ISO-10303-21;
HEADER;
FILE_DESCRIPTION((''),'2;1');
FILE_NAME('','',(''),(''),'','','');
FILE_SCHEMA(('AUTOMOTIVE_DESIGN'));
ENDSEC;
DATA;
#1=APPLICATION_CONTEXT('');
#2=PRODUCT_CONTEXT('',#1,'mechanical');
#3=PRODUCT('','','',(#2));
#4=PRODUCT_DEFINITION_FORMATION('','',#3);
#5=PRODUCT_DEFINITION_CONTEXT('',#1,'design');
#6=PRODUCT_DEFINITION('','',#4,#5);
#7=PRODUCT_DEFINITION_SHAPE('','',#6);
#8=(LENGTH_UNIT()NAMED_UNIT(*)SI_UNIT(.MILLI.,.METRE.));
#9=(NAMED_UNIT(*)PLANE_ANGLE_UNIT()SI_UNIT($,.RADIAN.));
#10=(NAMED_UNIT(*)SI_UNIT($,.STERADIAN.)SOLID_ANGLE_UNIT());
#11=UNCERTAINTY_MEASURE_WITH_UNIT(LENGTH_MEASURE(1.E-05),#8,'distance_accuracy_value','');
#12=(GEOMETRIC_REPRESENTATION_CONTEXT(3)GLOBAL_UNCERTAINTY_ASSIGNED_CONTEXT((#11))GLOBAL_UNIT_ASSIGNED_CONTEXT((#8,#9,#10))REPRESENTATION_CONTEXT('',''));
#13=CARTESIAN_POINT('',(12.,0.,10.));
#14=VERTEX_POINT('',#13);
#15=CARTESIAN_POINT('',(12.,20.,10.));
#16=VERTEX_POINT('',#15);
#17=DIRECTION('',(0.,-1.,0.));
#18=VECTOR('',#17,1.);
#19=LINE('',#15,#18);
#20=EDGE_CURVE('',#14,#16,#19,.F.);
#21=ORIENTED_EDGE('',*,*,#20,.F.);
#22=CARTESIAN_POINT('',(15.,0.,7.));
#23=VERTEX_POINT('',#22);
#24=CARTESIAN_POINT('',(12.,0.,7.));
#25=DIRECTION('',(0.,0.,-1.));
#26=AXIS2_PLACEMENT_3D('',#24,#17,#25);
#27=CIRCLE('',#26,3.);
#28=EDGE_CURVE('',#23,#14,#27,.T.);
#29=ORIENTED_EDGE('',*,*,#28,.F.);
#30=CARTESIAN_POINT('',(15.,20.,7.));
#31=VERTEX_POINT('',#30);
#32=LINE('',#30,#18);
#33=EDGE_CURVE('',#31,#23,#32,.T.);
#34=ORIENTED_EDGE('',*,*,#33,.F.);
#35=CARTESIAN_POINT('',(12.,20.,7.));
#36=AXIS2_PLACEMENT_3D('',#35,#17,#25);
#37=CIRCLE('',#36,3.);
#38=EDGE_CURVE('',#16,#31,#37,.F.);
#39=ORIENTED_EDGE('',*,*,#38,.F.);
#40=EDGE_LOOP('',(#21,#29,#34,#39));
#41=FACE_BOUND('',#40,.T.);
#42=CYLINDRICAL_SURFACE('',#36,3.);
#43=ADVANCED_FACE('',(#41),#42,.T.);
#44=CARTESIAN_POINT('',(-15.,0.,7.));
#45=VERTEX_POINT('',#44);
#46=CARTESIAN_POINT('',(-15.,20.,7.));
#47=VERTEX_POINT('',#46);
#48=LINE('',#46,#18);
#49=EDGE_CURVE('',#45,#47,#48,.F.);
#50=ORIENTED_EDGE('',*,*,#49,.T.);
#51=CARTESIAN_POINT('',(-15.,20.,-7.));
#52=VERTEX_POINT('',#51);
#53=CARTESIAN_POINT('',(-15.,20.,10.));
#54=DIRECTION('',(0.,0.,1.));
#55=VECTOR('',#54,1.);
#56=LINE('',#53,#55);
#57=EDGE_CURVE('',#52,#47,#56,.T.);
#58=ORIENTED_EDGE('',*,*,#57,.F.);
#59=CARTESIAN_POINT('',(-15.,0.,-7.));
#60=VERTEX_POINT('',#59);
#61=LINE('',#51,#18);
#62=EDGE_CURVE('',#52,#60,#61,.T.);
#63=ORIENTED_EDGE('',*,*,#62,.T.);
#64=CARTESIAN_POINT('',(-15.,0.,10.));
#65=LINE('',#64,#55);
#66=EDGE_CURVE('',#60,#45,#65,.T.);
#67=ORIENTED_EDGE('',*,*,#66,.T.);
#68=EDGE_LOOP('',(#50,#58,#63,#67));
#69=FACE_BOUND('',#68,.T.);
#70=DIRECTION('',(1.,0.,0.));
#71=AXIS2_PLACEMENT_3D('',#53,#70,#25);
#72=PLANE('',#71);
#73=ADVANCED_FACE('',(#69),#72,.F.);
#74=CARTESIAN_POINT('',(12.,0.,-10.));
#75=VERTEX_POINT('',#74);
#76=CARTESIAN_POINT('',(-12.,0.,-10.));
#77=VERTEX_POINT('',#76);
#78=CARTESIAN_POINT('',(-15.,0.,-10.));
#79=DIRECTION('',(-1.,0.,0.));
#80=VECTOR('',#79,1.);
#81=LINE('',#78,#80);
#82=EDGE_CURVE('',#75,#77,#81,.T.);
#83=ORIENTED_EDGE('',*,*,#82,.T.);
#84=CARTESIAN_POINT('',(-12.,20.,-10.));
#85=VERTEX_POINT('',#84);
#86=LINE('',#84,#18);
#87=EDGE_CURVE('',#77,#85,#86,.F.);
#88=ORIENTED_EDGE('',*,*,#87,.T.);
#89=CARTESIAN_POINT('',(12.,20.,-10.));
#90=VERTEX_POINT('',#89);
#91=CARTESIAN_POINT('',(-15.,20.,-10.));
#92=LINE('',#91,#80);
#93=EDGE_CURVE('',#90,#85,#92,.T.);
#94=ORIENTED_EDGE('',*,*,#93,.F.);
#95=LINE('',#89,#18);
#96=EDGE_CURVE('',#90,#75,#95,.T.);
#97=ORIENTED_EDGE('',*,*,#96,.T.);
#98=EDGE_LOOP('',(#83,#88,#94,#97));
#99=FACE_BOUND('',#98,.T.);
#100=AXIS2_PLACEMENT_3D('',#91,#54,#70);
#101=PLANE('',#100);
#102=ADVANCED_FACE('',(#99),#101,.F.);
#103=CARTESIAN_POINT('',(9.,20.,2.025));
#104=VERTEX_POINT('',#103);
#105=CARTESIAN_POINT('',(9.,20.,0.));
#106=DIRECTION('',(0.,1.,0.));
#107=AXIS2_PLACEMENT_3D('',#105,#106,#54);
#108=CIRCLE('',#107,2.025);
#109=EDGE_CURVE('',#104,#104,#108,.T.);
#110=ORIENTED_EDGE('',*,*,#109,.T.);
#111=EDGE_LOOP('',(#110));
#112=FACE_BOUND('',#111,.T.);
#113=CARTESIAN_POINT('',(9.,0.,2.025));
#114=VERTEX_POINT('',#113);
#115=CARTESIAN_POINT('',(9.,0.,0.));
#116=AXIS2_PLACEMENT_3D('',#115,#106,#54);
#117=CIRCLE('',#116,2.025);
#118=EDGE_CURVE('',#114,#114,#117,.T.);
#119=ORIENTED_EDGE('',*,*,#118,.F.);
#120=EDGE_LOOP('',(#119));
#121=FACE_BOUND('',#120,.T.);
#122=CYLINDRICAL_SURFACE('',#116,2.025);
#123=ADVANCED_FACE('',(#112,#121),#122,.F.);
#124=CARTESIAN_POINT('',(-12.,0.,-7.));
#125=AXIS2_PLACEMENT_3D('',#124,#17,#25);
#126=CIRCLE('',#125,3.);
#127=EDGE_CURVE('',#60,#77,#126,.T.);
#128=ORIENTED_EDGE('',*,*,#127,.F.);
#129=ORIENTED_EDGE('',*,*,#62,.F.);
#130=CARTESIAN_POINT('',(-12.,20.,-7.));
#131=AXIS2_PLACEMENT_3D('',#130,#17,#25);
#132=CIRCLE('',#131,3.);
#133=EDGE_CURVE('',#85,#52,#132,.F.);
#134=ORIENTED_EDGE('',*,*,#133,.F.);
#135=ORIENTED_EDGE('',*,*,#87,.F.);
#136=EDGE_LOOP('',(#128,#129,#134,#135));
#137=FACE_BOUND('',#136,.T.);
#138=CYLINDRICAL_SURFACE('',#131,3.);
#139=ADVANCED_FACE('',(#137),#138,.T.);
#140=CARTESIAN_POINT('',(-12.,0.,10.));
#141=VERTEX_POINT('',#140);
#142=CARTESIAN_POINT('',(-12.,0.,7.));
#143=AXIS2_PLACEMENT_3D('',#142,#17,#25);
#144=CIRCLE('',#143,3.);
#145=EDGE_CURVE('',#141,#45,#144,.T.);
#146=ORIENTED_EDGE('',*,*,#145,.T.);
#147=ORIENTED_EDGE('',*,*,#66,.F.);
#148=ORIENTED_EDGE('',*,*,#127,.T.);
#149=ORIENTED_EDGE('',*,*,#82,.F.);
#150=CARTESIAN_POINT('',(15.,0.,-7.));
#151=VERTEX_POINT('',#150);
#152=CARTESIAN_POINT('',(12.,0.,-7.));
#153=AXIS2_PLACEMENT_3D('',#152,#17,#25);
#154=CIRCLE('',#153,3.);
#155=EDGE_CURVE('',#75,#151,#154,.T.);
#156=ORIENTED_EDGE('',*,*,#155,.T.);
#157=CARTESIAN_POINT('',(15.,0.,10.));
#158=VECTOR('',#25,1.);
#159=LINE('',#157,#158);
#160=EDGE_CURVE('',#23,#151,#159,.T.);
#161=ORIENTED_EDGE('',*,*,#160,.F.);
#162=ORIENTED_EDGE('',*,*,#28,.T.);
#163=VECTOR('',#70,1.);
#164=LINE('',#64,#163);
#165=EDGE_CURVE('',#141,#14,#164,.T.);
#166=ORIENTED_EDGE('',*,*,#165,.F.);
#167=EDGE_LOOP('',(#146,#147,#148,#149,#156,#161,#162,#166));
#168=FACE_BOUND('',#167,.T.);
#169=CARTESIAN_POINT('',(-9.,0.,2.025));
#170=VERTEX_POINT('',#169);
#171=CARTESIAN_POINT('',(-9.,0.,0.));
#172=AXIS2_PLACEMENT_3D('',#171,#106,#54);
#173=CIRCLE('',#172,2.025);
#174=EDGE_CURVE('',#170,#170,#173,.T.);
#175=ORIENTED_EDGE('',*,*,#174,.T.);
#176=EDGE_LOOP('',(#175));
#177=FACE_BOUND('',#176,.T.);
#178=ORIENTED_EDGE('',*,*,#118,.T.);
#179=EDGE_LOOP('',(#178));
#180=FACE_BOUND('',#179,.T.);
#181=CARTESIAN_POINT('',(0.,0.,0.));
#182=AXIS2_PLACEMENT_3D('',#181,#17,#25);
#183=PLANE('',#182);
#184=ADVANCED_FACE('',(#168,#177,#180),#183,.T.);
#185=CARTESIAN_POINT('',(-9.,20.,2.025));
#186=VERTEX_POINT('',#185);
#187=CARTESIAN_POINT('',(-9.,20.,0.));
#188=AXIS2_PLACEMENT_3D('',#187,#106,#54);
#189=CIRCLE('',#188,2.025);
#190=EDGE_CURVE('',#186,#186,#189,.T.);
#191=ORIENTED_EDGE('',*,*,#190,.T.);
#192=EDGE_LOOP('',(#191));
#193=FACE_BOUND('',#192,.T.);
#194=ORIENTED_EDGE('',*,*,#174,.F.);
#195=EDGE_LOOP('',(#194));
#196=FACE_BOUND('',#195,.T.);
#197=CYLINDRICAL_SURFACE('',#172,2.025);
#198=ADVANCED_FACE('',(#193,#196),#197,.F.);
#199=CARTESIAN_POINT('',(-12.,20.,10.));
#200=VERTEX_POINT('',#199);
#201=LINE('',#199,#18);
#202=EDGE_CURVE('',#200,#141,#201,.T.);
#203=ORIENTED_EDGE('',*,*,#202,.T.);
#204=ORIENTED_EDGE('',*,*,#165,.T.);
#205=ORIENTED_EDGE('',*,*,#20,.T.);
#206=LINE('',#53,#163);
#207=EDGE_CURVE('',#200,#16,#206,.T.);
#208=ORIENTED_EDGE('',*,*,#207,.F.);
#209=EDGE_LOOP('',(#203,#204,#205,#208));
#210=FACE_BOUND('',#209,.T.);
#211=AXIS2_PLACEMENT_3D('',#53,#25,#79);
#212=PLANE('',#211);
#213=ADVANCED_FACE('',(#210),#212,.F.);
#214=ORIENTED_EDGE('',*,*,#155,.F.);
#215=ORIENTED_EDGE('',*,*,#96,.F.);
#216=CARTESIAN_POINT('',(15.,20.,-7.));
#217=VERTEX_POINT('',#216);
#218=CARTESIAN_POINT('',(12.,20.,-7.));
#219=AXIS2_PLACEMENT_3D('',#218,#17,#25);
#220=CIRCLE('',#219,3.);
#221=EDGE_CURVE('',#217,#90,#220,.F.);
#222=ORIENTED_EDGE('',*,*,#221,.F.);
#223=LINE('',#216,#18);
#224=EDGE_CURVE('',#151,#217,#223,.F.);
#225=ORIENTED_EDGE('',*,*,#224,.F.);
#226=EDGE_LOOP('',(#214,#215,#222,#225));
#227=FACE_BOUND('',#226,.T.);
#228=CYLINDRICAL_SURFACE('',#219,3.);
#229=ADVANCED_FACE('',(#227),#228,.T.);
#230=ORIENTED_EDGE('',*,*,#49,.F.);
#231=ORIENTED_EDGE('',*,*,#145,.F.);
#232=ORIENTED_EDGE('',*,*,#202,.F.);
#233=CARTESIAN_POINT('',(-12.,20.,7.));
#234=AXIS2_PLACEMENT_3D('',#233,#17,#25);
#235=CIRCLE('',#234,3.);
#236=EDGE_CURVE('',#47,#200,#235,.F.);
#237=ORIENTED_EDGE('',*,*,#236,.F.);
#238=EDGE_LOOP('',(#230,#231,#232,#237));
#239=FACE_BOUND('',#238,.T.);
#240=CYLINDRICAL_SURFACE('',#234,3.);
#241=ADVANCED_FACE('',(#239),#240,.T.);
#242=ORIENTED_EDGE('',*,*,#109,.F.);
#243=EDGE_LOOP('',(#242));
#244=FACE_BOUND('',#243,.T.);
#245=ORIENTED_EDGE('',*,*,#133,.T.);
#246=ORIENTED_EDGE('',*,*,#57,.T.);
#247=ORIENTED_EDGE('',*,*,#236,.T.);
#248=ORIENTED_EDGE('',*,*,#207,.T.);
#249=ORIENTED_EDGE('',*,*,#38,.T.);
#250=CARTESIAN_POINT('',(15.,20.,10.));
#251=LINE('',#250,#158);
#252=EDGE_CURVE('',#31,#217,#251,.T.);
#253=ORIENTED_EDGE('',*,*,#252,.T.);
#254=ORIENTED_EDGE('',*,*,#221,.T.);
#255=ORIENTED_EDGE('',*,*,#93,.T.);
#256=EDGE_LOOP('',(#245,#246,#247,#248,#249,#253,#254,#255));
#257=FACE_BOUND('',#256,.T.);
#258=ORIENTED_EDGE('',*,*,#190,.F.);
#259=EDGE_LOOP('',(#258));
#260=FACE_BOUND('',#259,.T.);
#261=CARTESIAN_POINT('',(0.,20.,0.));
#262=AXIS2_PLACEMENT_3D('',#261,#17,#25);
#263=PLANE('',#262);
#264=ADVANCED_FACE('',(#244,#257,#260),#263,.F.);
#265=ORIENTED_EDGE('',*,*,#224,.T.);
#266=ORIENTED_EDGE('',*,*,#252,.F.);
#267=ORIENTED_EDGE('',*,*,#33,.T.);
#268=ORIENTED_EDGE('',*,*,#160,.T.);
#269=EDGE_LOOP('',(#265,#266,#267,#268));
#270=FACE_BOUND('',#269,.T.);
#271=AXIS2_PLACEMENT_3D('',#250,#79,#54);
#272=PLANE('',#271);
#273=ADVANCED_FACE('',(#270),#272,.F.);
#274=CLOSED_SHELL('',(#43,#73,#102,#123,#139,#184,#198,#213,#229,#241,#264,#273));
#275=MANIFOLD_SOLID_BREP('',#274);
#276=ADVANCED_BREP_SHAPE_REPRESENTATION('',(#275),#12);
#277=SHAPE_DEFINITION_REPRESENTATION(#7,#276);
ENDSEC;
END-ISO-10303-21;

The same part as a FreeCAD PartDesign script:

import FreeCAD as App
import Part
import Sketcher
from FreeCAD import Vector


def edges_at(feature, points):
    """Names of the edges that pass closest to the given points."""
    edges = feature.Shape.Edges
    near = lambda p: min(range(len(edges)), key=lambda i: edges[i].distToShape(Part.Vertex(*p))[0])
    return sorted({f"Edge{near(p) + 1}" for p in points})


def add_polygon(sketch, points):
    """Adds a closed chain of lines whose ends are joined by coincident constraints."""
    first, n = sketch.GeometryCount, len(points)
    for a, b in zip(points, points[1:] + points[:1]):
        sketch.addGeometry(Part.LineSegment(App.Vector(*a, 0), App.Vector(*b, 0)), False)
    for i in range(n):
        sketch.addConstraint(Sketcher.Constraint("Coincident", first + i, 2, first + (i + 1) % n, 1))

doc = App.newDocument("Part")
params = doc.addObject("Spreadsheet::Sheet", "Params")
for row, (alias, value) in enumerate([
    ("sketch1_width", "30 mm"),
    ("sketch1_height", "20 mm"),
    ("pad1_length", "20 mm"),
    ("sketch2_diameter", "4.05 mm"),
    ("pocket1_length", "20 mm"),
    ("fillet_radius", "3 mm"),
], start=1):
    params.set(f"A{row}", alias)
    params.set(f"B{row}", "=" + value)
    params.setAlias(f"B{row}", alias)

body = doc.addObject("PartDesign::Body", "Body")

# Sketch on XZ plane
sketch1 = body.newObject("Sketcher::SketchObject", "Sketch")
sketch1.AttachmentSupport = (doc.getObject("XZ_Plane"), [""])
sketch1.MapMode = "FlatFace"
add_polygon(sketch1, [(-15, -10), (-15, 10), (15, 10), (15, -10)])  # lines 0-3
sketch1.addConstraint(Sketcher.Constraint("Vertical", 0))
sketch1.addConstraint(Sketcher.Constraint("Horizontal", 1))
sketch1.addConstraint(Sketcher.Constraint("Vertical", 2))
sketch1.addConstraint(Sketcher.Constraint("Horizontal", 3))
sketch1.addConstraint(Sketcher.Constraint("Symmetric", 0, 2, 2, 2, -1, 1))
sketch1.addConstraint(Sketcher.Constraint("DistanceX", 1, 1, 1, 2, 30.0))
sketch1.addConstraint(Sketcher.Constraint("DistanceY", 0, 1, 0, 2, 20.0))
sketch1.setExpression("Constraints[9]", "Params.sketch1_width")
sketch1.setExpression("Constraints[10]", "Params.sketch1_height")
pad1 = body.newObject("PartDesign::Pad", "Pad")
pad1.Profile = sketch1
pad1.setExpression("Length", "Params.pad1_length")
pad1.Reversed = True

# Sketch on XZ plane
sketch2 = body.newObject("Sketcher::SketchObject", "Sketch001")
sketch2.AttachmentSupport = (doc.getObject("XZ_Plane"), [""])
sketch2.MapMode = "FlatFace"
sketch2.AttachmentOffset = App.Placement(Vector(0, 0, -20), App.Rotation())
sketch2.addGeometry(Part.Circle(Vector(-9, 0, 0), Vector(0, 0, 1), 2.025), False)
sketch2.addGeometry(Part.Circle(Vector(9, 0, 0), Vector(0, 0, 1), 2.025), False)
sketch2.addConstraint(Sketcher.Constraint("Equal", 0, 1))
sketch2.addConstraint(Sketcher.Constraint("Symmetric", 0, 3, 1, 3, -1, 1))
sketch2.addConstraint(Sketcher.Constraint("PointOnObject", 0, 3, -1))
sketch2.addConstraint(Sketcher.Constraint("Diameter", 0, 4.05))
sketch2.addConstraint(Sketcher.Constraint("DistanceX", 0, 3, -1, 1, 9.0))
sketch2.setExpression("Constraints[3]", "Params.sketch2_diameter")
pocket1 = body.newObject("PartDesign::Pocket", "Pocket")
pocket1.Profile = sketch2
pocket1.setExpression("Length", "Params.pocket1_length")
pocket1.Reversed = True
doc.recompute()

fillet = body.newObject("PartDesign::Fillet", "Fillet")
fillet.Base = (pocket1, edges_at(pocket1, [
    (15, 10, 10),
    (-15, 10, 10),
    (-15, 10, -10),
    (15, 10, -10),
]))
fillet.setExpression("Radius", "Params.fillet_radius")

doc.recompute()
